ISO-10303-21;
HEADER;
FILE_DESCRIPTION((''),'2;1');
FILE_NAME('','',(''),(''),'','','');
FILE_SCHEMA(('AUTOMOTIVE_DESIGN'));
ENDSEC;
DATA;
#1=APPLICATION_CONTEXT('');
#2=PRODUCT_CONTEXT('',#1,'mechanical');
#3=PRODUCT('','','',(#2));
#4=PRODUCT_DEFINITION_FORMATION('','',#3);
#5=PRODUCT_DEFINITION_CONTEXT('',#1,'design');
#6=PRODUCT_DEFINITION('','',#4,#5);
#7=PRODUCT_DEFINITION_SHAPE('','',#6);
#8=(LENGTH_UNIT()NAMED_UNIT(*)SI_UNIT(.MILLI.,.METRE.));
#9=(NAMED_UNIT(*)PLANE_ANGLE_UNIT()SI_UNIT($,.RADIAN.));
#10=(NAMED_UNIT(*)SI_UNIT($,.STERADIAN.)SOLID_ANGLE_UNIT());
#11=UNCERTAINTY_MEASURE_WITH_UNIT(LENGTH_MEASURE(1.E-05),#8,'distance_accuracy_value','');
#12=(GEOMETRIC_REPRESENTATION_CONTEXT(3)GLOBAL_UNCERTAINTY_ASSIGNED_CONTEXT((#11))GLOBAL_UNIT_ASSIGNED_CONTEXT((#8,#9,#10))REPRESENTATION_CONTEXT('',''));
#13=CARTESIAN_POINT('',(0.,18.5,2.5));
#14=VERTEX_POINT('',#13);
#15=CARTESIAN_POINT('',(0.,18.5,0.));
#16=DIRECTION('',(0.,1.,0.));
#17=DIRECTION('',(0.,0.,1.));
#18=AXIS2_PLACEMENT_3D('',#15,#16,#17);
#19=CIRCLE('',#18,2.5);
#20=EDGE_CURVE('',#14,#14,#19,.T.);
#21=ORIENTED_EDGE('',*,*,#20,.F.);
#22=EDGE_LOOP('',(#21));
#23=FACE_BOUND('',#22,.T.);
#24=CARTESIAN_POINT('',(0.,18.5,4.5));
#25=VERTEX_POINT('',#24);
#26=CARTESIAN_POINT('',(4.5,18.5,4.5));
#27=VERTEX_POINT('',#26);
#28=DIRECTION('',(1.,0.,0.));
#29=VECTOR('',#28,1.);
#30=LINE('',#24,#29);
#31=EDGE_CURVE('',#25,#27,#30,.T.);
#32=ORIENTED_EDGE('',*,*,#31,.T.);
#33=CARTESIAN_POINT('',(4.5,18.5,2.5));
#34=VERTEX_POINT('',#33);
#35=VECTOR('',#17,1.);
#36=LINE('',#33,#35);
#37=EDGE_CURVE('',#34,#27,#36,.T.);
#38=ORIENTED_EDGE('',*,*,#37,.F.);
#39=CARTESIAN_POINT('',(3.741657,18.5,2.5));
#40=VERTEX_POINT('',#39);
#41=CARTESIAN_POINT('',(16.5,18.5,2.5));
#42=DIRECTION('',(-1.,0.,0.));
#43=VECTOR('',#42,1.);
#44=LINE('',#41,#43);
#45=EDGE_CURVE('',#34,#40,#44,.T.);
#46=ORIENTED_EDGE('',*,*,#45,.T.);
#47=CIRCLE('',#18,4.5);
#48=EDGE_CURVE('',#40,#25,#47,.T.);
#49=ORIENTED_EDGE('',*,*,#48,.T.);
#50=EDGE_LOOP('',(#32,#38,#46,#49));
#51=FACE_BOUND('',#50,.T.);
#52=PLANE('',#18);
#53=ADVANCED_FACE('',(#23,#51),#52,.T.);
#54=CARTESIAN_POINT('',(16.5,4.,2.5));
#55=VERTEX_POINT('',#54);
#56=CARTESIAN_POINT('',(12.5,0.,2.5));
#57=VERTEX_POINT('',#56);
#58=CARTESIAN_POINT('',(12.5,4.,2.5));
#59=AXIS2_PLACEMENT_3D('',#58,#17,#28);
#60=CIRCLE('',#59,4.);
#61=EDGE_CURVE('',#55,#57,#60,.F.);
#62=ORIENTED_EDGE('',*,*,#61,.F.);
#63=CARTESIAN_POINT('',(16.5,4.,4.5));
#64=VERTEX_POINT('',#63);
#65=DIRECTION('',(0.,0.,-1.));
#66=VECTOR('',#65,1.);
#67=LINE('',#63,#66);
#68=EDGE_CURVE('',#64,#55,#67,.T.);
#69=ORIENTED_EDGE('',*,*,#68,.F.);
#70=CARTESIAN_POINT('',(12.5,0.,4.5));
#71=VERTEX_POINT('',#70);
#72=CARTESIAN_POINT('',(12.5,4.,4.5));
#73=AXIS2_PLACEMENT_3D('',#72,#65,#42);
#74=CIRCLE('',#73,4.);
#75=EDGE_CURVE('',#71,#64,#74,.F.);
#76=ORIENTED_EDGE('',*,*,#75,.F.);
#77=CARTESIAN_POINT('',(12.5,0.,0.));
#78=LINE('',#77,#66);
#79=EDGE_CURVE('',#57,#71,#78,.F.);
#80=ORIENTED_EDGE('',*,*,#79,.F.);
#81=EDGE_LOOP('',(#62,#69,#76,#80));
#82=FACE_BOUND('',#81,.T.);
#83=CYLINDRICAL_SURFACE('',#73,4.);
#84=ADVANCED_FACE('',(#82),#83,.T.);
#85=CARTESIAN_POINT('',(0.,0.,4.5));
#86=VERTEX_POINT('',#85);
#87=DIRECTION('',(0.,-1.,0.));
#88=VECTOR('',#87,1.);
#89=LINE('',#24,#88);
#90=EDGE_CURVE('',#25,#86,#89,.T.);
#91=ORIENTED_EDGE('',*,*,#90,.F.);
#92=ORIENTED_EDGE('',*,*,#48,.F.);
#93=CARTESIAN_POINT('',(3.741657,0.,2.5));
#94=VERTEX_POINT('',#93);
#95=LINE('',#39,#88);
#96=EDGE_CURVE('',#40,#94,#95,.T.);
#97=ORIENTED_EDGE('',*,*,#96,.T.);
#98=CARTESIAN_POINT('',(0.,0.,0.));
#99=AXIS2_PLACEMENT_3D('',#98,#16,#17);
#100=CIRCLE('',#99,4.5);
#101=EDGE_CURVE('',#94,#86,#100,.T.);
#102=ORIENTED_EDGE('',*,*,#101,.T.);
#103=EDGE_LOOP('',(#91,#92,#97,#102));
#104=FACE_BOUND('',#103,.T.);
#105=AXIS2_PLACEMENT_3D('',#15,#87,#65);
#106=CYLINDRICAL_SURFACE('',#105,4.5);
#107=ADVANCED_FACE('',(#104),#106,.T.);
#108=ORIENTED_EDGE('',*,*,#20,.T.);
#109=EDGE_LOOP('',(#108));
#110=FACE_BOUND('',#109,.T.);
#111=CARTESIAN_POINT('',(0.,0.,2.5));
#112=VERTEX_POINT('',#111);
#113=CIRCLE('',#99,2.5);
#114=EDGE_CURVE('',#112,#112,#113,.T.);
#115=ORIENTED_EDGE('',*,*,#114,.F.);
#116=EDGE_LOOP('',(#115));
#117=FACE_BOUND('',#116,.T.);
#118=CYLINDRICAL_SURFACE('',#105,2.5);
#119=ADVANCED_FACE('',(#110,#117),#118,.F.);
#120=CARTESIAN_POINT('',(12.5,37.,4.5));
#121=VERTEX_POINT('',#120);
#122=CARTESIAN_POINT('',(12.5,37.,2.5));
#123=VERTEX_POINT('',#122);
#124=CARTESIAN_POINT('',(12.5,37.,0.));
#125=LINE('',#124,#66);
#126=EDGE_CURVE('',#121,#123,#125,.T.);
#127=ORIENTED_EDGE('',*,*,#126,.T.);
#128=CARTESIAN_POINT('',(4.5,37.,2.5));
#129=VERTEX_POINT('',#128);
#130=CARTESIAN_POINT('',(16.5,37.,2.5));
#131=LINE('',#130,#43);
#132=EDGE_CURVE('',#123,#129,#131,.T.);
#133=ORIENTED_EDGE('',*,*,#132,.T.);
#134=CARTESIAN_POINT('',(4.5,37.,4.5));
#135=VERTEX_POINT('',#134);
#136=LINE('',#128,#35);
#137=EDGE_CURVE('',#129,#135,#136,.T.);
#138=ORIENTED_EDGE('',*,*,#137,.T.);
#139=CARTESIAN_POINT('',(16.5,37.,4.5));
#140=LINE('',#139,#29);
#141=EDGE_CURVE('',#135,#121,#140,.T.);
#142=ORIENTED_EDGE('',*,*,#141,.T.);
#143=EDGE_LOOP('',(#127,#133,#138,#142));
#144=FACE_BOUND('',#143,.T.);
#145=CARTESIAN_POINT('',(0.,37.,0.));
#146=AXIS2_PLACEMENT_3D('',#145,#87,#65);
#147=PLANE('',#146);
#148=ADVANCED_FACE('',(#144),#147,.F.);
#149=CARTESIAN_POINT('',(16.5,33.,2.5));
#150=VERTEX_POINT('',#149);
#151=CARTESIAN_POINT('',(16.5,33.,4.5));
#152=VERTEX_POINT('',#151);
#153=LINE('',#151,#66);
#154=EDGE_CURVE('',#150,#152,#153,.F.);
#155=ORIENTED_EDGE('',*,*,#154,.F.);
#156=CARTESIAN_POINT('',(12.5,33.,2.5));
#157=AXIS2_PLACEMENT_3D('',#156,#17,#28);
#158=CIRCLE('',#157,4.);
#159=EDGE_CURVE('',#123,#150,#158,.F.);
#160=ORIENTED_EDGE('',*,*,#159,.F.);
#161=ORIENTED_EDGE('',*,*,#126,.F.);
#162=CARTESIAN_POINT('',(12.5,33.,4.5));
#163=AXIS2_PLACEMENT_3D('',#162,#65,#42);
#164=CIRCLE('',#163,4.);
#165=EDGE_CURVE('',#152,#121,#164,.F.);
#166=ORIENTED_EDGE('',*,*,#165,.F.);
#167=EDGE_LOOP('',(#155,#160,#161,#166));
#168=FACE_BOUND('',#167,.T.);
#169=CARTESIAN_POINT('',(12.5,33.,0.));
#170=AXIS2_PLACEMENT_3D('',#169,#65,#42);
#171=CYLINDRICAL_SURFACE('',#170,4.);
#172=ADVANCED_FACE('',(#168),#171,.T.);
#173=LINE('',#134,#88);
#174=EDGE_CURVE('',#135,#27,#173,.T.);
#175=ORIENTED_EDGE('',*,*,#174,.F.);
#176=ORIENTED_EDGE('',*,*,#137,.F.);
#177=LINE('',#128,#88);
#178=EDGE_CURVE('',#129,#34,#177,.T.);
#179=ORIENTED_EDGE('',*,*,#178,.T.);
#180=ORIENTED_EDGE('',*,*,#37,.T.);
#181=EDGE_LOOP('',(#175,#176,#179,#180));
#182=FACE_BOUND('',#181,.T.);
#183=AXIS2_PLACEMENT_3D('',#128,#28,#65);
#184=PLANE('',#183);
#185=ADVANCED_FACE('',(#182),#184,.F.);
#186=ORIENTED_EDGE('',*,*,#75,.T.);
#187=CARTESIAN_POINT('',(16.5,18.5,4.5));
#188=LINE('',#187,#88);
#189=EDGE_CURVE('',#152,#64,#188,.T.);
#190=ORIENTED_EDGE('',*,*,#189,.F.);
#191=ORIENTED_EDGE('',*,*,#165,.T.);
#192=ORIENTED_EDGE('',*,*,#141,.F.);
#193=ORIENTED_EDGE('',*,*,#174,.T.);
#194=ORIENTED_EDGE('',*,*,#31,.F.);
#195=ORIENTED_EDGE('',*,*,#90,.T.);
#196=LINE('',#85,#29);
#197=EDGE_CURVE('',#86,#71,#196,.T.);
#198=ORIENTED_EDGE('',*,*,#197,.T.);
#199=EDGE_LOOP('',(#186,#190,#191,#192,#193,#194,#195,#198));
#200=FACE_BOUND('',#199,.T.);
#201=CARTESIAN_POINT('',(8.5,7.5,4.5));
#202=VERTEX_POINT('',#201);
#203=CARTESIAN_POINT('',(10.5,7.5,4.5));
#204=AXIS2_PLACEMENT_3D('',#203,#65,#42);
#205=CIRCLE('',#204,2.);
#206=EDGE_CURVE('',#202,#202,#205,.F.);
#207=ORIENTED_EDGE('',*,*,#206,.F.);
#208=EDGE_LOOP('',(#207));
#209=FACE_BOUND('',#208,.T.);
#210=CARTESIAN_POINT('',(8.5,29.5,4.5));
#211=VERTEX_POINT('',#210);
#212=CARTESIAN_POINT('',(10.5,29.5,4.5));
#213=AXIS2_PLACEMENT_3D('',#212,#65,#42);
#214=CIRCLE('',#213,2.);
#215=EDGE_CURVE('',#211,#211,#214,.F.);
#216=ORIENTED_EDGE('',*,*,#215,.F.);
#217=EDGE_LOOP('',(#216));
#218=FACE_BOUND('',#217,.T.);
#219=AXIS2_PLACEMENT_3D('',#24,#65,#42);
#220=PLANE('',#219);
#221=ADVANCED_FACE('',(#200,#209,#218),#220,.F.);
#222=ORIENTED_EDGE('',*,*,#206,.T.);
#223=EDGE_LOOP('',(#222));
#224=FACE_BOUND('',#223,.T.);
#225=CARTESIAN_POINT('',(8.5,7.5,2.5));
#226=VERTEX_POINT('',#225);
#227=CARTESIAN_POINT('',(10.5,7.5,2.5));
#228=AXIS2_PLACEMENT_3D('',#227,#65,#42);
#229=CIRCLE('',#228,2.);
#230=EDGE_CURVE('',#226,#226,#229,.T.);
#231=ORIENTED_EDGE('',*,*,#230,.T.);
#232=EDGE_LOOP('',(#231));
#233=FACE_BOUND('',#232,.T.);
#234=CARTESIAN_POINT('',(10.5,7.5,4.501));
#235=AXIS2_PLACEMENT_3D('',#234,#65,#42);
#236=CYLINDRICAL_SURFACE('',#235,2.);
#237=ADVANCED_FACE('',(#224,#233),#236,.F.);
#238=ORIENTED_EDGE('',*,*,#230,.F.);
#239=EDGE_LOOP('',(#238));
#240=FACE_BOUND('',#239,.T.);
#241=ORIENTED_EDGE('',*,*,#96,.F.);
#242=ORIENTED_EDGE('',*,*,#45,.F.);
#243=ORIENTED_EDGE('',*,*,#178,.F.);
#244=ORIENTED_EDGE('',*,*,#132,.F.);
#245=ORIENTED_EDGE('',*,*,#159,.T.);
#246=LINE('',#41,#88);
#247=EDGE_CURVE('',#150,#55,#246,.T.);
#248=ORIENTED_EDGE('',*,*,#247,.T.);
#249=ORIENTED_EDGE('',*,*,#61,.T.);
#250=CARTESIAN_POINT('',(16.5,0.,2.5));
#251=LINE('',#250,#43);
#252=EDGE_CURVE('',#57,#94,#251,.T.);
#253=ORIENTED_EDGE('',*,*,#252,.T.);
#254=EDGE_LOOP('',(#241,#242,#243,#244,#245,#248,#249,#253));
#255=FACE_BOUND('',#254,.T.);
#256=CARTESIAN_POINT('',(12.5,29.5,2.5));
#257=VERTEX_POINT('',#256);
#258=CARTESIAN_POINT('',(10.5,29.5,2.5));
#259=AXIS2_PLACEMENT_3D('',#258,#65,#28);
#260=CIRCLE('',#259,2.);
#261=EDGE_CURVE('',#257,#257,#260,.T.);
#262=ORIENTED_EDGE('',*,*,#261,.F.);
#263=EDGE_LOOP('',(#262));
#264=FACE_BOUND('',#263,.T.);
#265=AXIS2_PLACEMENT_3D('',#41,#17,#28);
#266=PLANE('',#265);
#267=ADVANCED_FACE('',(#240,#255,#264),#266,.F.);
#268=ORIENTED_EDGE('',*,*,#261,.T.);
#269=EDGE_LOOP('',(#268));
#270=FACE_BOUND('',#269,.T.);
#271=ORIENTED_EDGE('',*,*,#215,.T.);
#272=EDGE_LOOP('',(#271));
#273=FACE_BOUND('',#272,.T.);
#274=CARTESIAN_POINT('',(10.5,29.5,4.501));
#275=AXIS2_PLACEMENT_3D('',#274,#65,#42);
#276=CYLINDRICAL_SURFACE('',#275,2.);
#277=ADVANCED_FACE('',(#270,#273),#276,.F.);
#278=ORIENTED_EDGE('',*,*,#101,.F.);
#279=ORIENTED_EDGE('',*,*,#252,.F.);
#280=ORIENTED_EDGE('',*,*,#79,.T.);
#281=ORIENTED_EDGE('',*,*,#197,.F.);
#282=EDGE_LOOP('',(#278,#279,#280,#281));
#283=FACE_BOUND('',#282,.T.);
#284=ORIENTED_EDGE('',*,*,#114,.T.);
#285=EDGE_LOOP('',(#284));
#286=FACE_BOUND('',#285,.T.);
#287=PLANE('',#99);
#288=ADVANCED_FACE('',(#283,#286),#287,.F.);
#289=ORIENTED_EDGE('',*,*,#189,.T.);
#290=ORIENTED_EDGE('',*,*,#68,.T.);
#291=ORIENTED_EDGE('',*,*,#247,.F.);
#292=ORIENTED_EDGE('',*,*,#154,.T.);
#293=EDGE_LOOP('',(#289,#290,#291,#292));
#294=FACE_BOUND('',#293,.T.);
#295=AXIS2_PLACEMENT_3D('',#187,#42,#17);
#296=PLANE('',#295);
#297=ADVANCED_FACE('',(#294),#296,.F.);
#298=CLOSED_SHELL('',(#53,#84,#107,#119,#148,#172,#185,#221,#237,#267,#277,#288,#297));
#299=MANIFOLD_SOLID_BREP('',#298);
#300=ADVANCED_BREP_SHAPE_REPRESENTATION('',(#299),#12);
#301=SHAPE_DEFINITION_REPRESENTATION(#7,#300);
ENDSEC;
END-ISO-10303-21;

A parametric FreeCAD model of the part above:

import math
import FreeCAD as App
import Part
import Sketcher
from FreeCAD import Vector
Q = App.Units.Quantity


def edges_at(feature, points):
    """Names of the edges that pass closest to the given points."""
    edges = feature.Shape.Edges
    near = lambda p: min(range(len(edges)), key=lambda i: edges[i].distToShape(Part.Vertex(*p))[0])
    return sorted({f"Edge{near(p) + 1}" for p in points})


def add_polygon(sketch, points):
    """Adds a closed chain of lines whose ends are joined by coincident constraints."""
    first, n = sketch.GeometryCount, len(points)
    for a, b in zip(points, points[1:] + points[:1]):
        sketch.addGeometry(Part.LineSegment(App.Vector(*a, 0), App.Vector(*b, 0)), False)
    for i in range(n):
        sketch.addConstraint(Sketcher.Constraint("Coincident", first + i, 2, first + (i + 1) % n, 1))

doc = App.newDocument("Part")
params = doc.addObject("Spreadsheet::Sheet", "Params")
for row, (alias, value) in enumerate([
    ("sketch1_diameter", "5 mm"),
    ("sketch1_radius", "4.5 mm"),
    ("sketch1_height", "2 mm"),
    ("sketch1_width", "16.5 mm"),
    ("pad1_length", "18.5 mm"),
    ("sketch2_width", "12 mm"),
    ("sketch2_height", "2 mm"),
    ("pad2_length", "18.5 mm"),
    ("sketch3_diameter", "4 mm"),
    ("sketch4_diameter", "4 mm"),
    ("fillet_radius", "4 mm"),
], start=1):
    params.set(f"A{row}", alias)
    params.set(f"B{row}", "=" + value)
    params.setAlias(f"B{row}", alias)

body = doc.addObject("PartDesign::Body", "Body")

# Sketch on XZ plane
sketch1 = body.newObject("Sketcher::SketchObject", "Sketch")
sketch1.AttachmentSupport = (doc.getObject("XZ_Plane"), [""])
sketch1.MapMode = "FlatFace"
sketch1.addGeometry(Part.LineSegment(Vector(0, 4.5, 0), Vector(16.5, 4.5, 0)), False)
sketch1.addGeometry(Part.LineSegment(Vector(16.5, 4.5, 0), Vector(16.5, 2.5, 0)), False)
sketch1.addGeometry(Part.LineSegment(Vector(16.5, 2.5, 0), Vector(3.741657, 2.5, 0)), False)
sketch1.addGeometry(Part.ArcOfCircle(Part.Circle(Vector(0, 0, 0), Vector(0, 0, 1), 4.5), math.radians(90), math.radians(393.748989)), False)
sketch1.addGeometry(Part.Circle(Vector(0, 0, 0), Vector(0, 0, 1), 2.5), False)
sketch1.addConstraint(Sketcher.Constraint("Coincident", 0, 2, 1, 1))
sketch1.addConstraint(Sketcher.Constraint("Coincident", 1, 2, 2, 1))
sketch1.addConstraint(Sketcher.Constraint("Coincident", 2, 2, 3, 2))
sketch1.addConstraint(Sketcher.Constraint("Tangent", 3, 1, 0, 1))
sketch1.addConstraint(Sketcher.Constraint("Horizontal", 0))
sketch1.addConstraint(Sketcher.Constraint("Vertical", 1))
sketch1.addConstraint(Sketcher.Constraint("Horizontal", 2))
sketch1.addConstraint(Sketcher.Constraint("Coincident", 3, 3, -1, 1))
sketch1.addConstraint(Sketcher.Constraint("Coincident", 4, 3, -1, 1))
sketch1.addConstraint(Sketcher.Constraint("Diameter", 4, Q("5 mm")))
sketch1.addConstraint(Sketcher.Constraint("Radius", 3, Q("4.5 mm")))
sketch1.addConstraint(Sketcher.Constraint("DistanceY", 1, 2, 1, 1, Q("2 mm")))
sketch1.addConstraint(Sketcher.Constraint("DistanceX", 0, 1, 0, 2, Q("16.5 mm")))
sketch1.setExpression("Constraints[9]", "Params.sketch1_diameter")
sketch1.setExpression("Constraints[10]", "Params.sketch1_radius")
sketch1.setExpression("Constraints[11]", "Params.sketch1_height")
sketch1.setExpression("Constraints[12]", "Params.sketch1_width")
pad1 = body.newObject("PartDesign::Pad", "Pad")
pad1.Profile = sketch1
pad1.setExpression("Length", "Params.pad1_length")
pad1.Reversed = True

# Sketch on XZ plane
sketch2 = body.newObject("Sketcher::SketchObject", "Sketch001")
sketch2.AttachmentSupport = (doc.getObject("XZ_Plane"), [""])
sketch2.MapMode = "FlatFace"
sketch2.AttachmentOffset = App.Placement(Vector(0, 0, -18.5), App.Rotation())
add_polygon(sketch2, [(4.5, 2.5), (4.5, 4.5), (16.5, 4.5), (16.5, 2.5)])  # lines 0-3
sketch2.addConstraint(Sketcher.Constraint("Vertical", 0))
sketch2.addConstraint(Sketcher.Constraint("Horizontal", 1))
sketch2.addConstraint(Sketcher.Constraint("Vertical", 2))
sketch2.addConstraint(Sketcher.Constraint("Horizontal", 3))
sketch2.addConstraint(Sketcher.Constraint("DistanceX", 1, 1, 1, 2, Q("12 mm")))
sketch2.addConstraint(Sketcher.Constraint("DistanceY", 0, 1, 0, 2, Q("2 mm")))
sketch2.addConstraint(Sketcher.Constraint("DistanceX", -1, 1, 0, 2, Q("4.5 mm")))
sketch2.addConstraint(Sketcher.Constraint("DistanceY", -1, 1, 0, 2, Q("4.5 mm")))
sketch2.setExpression("Constraints[8]", "Params.sketch2_width")
sketch2.setExpression("Constraints[9]", "Params.sketch2_height")
pad2 = body.newObject("PartDesign::Pad", "Pad001")
pad2.Profile = sketch2
pad2.setExpression("Length", "Params.pad2_length")
pad2.Reversed = True

# Sketch on XY plane
sketch3 = body.newObject("Sketcher::SketchObject", "Sketch002")
sketch3.AttachmentSupport = (doc.getObject("XY_Plane"), [""])
sketch3.MapMode = "FlatFace"
sketch3.AttachmentOffset = App.Placement(Vector(0, 0, 2.5), App.Rotation())
sketch3.addGeometry(Part.Circle(Vector(10.5, 7.5, 0), Vector(0, 0, 1), 2), False)
sketch3.addConstraint(Sketcher.Constraint("Diameter", 0, Q("4 mm")))
sketch3.addConstraint(Sketcher.Constraint("DistanceX", -1, 1, 0, 3, Q("10.5 mm")))
sketch3.addConstraint(Sketcher.Constraint("DistanceY", -1, 1, 0, 3, Q("7.5 mm")))
sketch3.setExpression("Constraints[0]", "Params.sketch3_diameter")
pocket1 = body.newObject("PartDesign::Pocket", "Pocket")
pocket1.Profile = sketch3
pocket1.Type = "UpToFirst"
pocket1.Reversed = True

# Sketch on XY plane
sketch4 = body.newObject("Sketcher::SketchObject", "Sketch003")
sketch4.AttachmentSupport = (doc.getObject("XY_Plane"), [""])
sketch4.MapMode = "FlatFace"
sketch4.AttachmentOffset = App.Placement(Vector(0, 0, 2.5), App.Rotation())
sketch4.addGeometry(Part.Circle(Vector(10.5, 29.5, 0), Vector(0, 0, 1), 2), False)
sketch4.addConstraint(Sketcher.Constraint("Diameter", 0, Q("4 mm")))
sketch4.addConstraint(Sketcher.Constraint("DistanceX", -1, 1, 0, 3, Q("10.5 mm")))
sketch4.addConstraint(Sketcher.Constraint("DistanceY", -1, 1, 0, 3, Q("29.5 mm")))
sketch4.setExpression("Constraints[0]", "Params.sketch4_diameter")
pocket2 = body.newObject("PartDesign::Pocket", "Pocket001")
pocket2.Profile = sketch4
pocket2.Type = "UpToFirst"
pocket2.Reversed = True
doc.recompute()

fillet = body.newObject("PartDesign::Fillet", "Fillet")
fillet.Base = (pocket2, edges_at(pocket2, [(16.5, 37, 3.5), (16.5, 0, 3.5)]))
fillet.setExpression("Radius", "Params.fillet_radius")

doc.recompute()
